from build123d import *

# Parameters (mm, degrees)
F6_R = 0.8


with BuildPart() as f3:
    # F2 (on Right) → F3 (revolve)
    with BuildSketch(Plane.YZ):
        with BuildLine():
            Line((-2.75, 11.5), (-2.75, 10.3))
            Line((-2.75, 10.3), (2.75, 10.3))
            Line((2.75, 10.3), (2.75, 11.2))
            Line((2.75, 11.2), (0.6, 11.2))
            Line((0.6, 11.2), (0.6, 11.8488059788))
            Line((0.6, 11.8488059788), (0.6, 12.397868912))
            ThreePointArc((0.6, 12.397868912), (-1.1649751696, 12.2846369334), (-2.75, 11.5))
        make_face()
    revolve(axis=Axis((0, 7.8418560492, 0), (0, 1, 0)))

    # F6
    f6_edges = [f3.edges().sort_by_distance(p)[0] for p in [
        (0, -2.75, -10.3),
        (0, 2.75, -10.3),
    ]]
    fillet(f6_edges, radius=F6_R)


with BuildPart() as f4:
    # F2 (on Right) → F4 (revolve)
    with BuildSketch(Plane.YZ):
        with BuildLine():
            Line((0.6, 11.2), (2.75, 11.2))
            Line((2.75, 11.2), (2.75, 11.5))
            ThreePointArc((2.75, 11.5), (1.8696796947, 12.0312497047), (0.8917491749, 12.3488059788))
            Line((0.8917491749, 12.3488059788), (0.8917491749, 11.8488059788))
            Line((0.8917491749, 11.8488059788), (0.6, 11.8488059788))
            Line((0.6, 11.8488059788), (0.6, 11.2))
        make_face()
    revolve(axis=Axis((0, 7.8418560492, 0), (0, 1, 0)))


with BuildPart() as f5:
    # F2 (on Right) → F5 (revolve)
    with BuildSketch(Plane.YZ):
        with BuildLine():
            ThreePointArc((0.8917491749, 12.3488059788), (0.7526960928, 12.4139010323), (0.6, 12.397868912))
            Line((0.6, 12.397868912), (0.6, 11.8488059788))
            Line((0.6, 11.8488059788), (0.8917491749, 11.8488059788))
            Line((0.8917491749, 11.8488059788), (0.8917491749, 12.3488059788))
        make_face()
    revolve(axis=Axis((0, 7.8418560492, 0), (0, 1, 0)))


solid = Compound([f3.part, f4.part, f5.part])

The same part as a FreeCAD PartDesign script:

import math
import FreeCAD as App
import Part
import Sketcher
from FreeCAD import Vector


def edges_at(feature, points):
    """Names of the edges that pass closest to the given points."""
    edges = feature.Shape.Edges
    near = lambda p: min(range(len(edges)), key=lambda i: edges[i].distToShape(Part.Vertex(*p))[0])
    return sorted({f"Edge{near(p) + 1}" for p in points})

doc = App.newDocument("Part")
params = doc.addObject("Spreadsheet::Sheet", "Params")
for row, (alias, value) in enumerate([
    ("sketch1_radius", "4.5 mm"),
    ("sketch1_width", "5.5 mm"),
    ("sketch1_height", "1.2 mm"),
    ("sketch1_height2", "0.9 mm"),
    ("sketch1_width2", "2.15 mm"),
    ("revolution_angle", "360 deg"),
    ("fillet_radius", "0.8 mm"),
    ("sketch2_radius", "4.5 mm"),
    ("sketch2_height", "0.3 mm"),
    ("sketch2_height2", "0.5 mm"),
    ("sketch2_width", "2.15 mm"),
    ("revolution2_angle", "360 deg"),
    ("sketch3_height", "0.5 mm"),
    ("revolution3_angle", "360 deg"),
], start=1):
    params.set(f"A{row}", alias)
    params.set(f"B{row}", "=" + value)
    params.setAlias(f"B{row}", alias)

body = doc.addObject("PartDesign::Body", "Body")

# Sketch on YZ plane
sketch1 = doc.addObject("Sketcher::SketchObject", "Sketch")
body.addObject(sketch1)
sketch1.AttachmentSupport = (doc.YZ_Plane, [""])
sketch1.MapMode = "FlatFace"
sketch1.addGeometry(Part.LineSegment(Vector(-2.8, 11.5, 0), Vector(-2.8, 10.3, 0)), False)
sketch1.addGeometry(Part.LineSegment(Vector(-2.8, 10.3, 0), Vector(2.8, 10.3, 0)), False)
sketch1.addGeometry(Part.LineSegment(Vector(2.8, 10.3, 0), Vector(2.8, 11.2, 0)), False)
sketch1.addGeometry(Part.LineSegment(Vector(2.8, 11.2, 0), Vector(0.6, 11.2, 0)), False)
sketch1.addGeometry(Part.LineSegment(Vector(0.6, 11.2, 0), Vector(0.6, 12.4, 0)), False)
sketch1.addGeometry(Part.ArcOfCircle(Part.Circle(Vector(0, 7.9, 0), Vector(0, 0, 1), 4.5), math.radians(82), math.radians(128)), False)
sketch1.addConstraint(Sketcher.Constraint("Coincident", 0, 2, 1, 1))
sketch1.addConstraint(Sketcher.Constraint("Coincident", 1, 2, 2, 1))
sketch1.addConstraint(Sketcher.Constraint("Coincident", 2, 2, 3, 1))
sketch1.addConstraint(Sketcher.Constraint("Coincident", 3, 2, 4, 1))
sketch1.addConstraint(Sketcher.Constraint("Coincident", 4, 2, 5, 1))
sketch1.addConstraint(Sketcher.Constraint("Coincident", 5, 2, 0, 1))
sketch1.addConstraint(Sketcher.Constraint("Vertical", 0))
sketch1.addConstraint(Sketcher.Constraint("Horizontal", 1))
sketch1.addConstraint(Sketcher.Constraint("Vertical", 2))
sketch1.addConstraint(Sketcher.Constraint("Horizontal", 3))
sketch1.addConstraint(Sketcher.Constraint("Vertical", 4))
sketch1.addConstraint(Sketcher.Constraint("PointOnObject", 5, 3, -2))
sketch1.addConstraint(Sketcher.Constraint("Radius", 5, 4.5))
sketch1.addConstraint(Sketcher.Constraint("DistanceX", 1, 1, 1, 2, 5.5))
sketch1.addConstraint(Sketcher.Constraint("DistanceY", 0, 2, 0, 1, 1.2))
sketch1.addConstraint(Sketcher.Constraint("DistanceY", 2, 1, 2, 2, 0.9))
sketch1.addConstraint(Sketcher.Constraint("DistanceX", 3, 2, 3, 1, 2.15))
sketch1.addConstraint(Sketcher.Constraint("DistanceY", -1, 1, 0, 2, 10.3))
sketch1.addConstraint(Sketcher.Constraint("DistanceX", -1, 1, 3, 2, 0.6))
sketch1.setExpression("Constraints[12]", "Params.sketch1_radius")
sketch1.setExpression("Constraints[13]", "Params.sketch1_width")
sketch1.setExpression("Constraints[14]", "Params.sketch1_height")
sketch1.setExpression("Constraints[15]", "Params.sketch1_height2")
sketch1.setExpression("Constraints[16]", "Params.sketch1_width2")
revolution = doc.addObject("PartDesign::Revolution", "Revolution")
body.addObject(revolution)
revolution.Profile = sketch1
revolution.ReferenceAxis = (sketch1, ["H_Axis"])
revolution.setExpression("Angle", "Params.revolution_angle")
doc.recompute()

fillet = doc.addObject("PartDesign::Fillet", "Fillet")
body.addObject(fillet)
fillet.Base = (revolution, edges_at(revolution, [(0, -2.75, -10.3), (0, 2.75, -10.3)]))
fillet.setExpression("Radius", "Params.fillet_radius")
body2 = doc.addObject("PartDesign::Body", "Body001")

# Sketch on YZ plane
sketch2 = doc.addObject("Sketcher::SketchObject", "Sketch001")
body2.addObject(sketch2)
sketch2.AttachmentSupport = (doc.getObject("YZ_Plane001"), [""])
sketch2.MapMode = "FlatFace"
sketch2.addGeometry(Part.LineSegment(Vector(0.6, 11.2, 0), Vector(2.75, 11.2, 0)), False)
sketch2.addGeometry(Part.LineSegment(Vector(2.75, 11.2, 0), Vector(2.75, 11.5, 0)), False)
sketch2.addGeometry(Part.ArcOfCircle(Part.Circle(Vector(0, 7.94, 0), Vector(0, 0, 1), 4.5), math.radians(52), math.radians(79)), False)
sketch2.addGeometry(Part.LineSegment(Vector(0.89, 12.35, 0), Vector(0.89, 11.85, 0)), False)
sketch2.addGeometry(Part.LineSegment(Vector(0.89, 11.85, 0), Vector(0.6, 11.85, 0)), False)
sketch2.addGeometry(Part.LineSegment(Vector(0.6, 11.85, 0), Vector(0.6, 11.2, 0)), False)
sketch2.addConstraint(Sketcher.Constraint("Coincident", 0, 2, 1, 1))
sketch2.addConstraint(Sketcher.Constraint("Coincident", 1, 2, 2, 1))
sketch2.addConstraint(Sketcher.Constraint("Coincident", 2, 2, 3, 1))
sketch2.addConstraint(Sketcher.Constraint("Coincident", 3, 2, 4, 1))
sketch2.addConstraint(Sketcher.Constraint("Coincident", 4, 2, 5, 1))
sketch2.addConstraint(Sketcher.Constraint("Coincident", 5, 2, 0, 1))
sketch2.addConstraint(Sketcher.Constraint("Horizontal", 0))
sketch2.addConstraint(Sketcher.Constraint("Vertical", 1))
sketch2.addConstraint(Sketcher.Constraint("Vertical", 3))
sketch2.addConstraint(Sketcher.Constraint("Horizontal", 4))
sketch2.addConstraint(Sketcher.Constraint("Vertical", 5))
sketch2.addConstraint(Sketcher.Constraint("PointOnObject", 2, 3, -2))
sketch2.addConstraint(Sketcher.Constraint("Radius", 2, 4.5))
sketch2.addConstraint(Sketcher.Constraint("DistanceY", 1, 1, 1, 2, 0.3))
sketch2.addConstraint(Sketcher.Constraint("DistanceY", 3, 2, 3, 1, 0.5))
sketch2.addConstraint(Sketcher.Constraint("DistanceX", 0, 1, 0, 2, 2.15))
sketch2.addConstraint(Sketcher.Constraint("DistanceY", -1, 1, 0, 2, 11.2))
sketch2.addConstraint(Sketcher.Constraint("DistanceX", -1, 1, 4, 2, 0.6))
sketch2.addConstraint(Sketcher.Constraint("DistanceX", 4, 2, 4, 1, 0.291749))
sketch2.setExpression("Constraints[12]", "Params.sketch2_radius")
sketch2.setExpression("Constraints[13]", "Params.sketch2_height")
sketch2.setExpression("Constraints[14]", "Params.sketch2_height2")
sketch2.setExpression("Constraints[15]", "Params.sketch2_width")
revolution2 = doc.addObject("PartDesign::Revolution", "Revolution001")
body2.addObject(revolution2)
revolution2.Profile = sketch2
revolution2.ReferenceAxis = (sketch2, ["H_Axis"])
revolution2.setExpression("Angle", "Params.revolution2_angle")
body3 = doc.addObject("PartDesign::Body", "Body002")

# Sketch on YZ plane
sketch3 = doc.addObject("Sketcher::SketchObject", "Sketch002")
body3.addObject(sketch3)
sketch3.AttachmentSupport = (doc.getObject("YZ_Plane002"), [""])
sketch3.MapMode = "FlatFace"
sketch3.addGeometry(Part.ArcOfCircle(Part.Circle(Vector(0.71, 12.13, 0), Vector(0, 0, 1), 0.29), math.radians(49), math.radians(112)), False)
sketch3.addGeometry(Part.LineSegment(Vector(0.6, 12.4, 0), Vector(0.6, 11.85, 0)), False)
sketch3.addGeometry(Part.LineSegment(Vector(0.6, 11.85, 0), Vector(0.89, 11.85, 0)), False)
sketch3.addGeometry(Part.LineSegment(Vector(0.89, 11.85, 0), Vector(0.89, 12.35, 0)), False)
sketch3.addConstraint(Sketcher.Constraint("Coincident", 0, 2, 1, 1))
sketch3.addConstraint(Sketcher.Constraint("Coincident", 1, 2, 2, 1))
sketch3.addConstraint(Sketcher.Constraint("Coincident", 2, 2, 3, 1))
sketch3.addConstraint(Sketcher.Constraint("Coincident", 3, 2, 0, 1))
sketch3.addConstraint(Sketcher.Constraint("Vertical", 1))
sketch3.addConstraint(Sketcher.Constraint("Horizontal", 2))
sketch3.addConstraint(Sketcher.Constraint("Vertical", 3))
sketch3.addConstraint(Sketcher.Constraint("DistanceY", 3, 1, 3, 2, 0.5))
sketch3.addConstraint(Sketcher.Constraint("DistanceX", -1, 1, 0, 2, 0.6))
sketch3.addConstraint(Sketcher.Constraint("Radius", 0, 0.286546))
sketch3.addConstraint(Sketcher.Constraint("DistanceX", 2, 1, 2, 2, 0.291749))
sketch3.addConstraint(Sketcher.Constraint("DistanceY", 1, 2, 1, 1, 0.549063))
sketch3.addConstraint(Sketcher.Constraint("DistanceY", -1, 1, 0, 2, 12.397869))
sketch3.setExpression("Constraints[7]", "Params.sketch3_height")
revolution3 = doc.addObject("PartDesign::Revolution", "Revolution002")
body3.addObject(revolution3)
revolution3.Profile = sketch3
revolution3.ReferenceAxis = (sketch3, ["H_Axis"])
revolution3.setExpression("Angle", "Params.revolution3_angle")

doc.recompute()
